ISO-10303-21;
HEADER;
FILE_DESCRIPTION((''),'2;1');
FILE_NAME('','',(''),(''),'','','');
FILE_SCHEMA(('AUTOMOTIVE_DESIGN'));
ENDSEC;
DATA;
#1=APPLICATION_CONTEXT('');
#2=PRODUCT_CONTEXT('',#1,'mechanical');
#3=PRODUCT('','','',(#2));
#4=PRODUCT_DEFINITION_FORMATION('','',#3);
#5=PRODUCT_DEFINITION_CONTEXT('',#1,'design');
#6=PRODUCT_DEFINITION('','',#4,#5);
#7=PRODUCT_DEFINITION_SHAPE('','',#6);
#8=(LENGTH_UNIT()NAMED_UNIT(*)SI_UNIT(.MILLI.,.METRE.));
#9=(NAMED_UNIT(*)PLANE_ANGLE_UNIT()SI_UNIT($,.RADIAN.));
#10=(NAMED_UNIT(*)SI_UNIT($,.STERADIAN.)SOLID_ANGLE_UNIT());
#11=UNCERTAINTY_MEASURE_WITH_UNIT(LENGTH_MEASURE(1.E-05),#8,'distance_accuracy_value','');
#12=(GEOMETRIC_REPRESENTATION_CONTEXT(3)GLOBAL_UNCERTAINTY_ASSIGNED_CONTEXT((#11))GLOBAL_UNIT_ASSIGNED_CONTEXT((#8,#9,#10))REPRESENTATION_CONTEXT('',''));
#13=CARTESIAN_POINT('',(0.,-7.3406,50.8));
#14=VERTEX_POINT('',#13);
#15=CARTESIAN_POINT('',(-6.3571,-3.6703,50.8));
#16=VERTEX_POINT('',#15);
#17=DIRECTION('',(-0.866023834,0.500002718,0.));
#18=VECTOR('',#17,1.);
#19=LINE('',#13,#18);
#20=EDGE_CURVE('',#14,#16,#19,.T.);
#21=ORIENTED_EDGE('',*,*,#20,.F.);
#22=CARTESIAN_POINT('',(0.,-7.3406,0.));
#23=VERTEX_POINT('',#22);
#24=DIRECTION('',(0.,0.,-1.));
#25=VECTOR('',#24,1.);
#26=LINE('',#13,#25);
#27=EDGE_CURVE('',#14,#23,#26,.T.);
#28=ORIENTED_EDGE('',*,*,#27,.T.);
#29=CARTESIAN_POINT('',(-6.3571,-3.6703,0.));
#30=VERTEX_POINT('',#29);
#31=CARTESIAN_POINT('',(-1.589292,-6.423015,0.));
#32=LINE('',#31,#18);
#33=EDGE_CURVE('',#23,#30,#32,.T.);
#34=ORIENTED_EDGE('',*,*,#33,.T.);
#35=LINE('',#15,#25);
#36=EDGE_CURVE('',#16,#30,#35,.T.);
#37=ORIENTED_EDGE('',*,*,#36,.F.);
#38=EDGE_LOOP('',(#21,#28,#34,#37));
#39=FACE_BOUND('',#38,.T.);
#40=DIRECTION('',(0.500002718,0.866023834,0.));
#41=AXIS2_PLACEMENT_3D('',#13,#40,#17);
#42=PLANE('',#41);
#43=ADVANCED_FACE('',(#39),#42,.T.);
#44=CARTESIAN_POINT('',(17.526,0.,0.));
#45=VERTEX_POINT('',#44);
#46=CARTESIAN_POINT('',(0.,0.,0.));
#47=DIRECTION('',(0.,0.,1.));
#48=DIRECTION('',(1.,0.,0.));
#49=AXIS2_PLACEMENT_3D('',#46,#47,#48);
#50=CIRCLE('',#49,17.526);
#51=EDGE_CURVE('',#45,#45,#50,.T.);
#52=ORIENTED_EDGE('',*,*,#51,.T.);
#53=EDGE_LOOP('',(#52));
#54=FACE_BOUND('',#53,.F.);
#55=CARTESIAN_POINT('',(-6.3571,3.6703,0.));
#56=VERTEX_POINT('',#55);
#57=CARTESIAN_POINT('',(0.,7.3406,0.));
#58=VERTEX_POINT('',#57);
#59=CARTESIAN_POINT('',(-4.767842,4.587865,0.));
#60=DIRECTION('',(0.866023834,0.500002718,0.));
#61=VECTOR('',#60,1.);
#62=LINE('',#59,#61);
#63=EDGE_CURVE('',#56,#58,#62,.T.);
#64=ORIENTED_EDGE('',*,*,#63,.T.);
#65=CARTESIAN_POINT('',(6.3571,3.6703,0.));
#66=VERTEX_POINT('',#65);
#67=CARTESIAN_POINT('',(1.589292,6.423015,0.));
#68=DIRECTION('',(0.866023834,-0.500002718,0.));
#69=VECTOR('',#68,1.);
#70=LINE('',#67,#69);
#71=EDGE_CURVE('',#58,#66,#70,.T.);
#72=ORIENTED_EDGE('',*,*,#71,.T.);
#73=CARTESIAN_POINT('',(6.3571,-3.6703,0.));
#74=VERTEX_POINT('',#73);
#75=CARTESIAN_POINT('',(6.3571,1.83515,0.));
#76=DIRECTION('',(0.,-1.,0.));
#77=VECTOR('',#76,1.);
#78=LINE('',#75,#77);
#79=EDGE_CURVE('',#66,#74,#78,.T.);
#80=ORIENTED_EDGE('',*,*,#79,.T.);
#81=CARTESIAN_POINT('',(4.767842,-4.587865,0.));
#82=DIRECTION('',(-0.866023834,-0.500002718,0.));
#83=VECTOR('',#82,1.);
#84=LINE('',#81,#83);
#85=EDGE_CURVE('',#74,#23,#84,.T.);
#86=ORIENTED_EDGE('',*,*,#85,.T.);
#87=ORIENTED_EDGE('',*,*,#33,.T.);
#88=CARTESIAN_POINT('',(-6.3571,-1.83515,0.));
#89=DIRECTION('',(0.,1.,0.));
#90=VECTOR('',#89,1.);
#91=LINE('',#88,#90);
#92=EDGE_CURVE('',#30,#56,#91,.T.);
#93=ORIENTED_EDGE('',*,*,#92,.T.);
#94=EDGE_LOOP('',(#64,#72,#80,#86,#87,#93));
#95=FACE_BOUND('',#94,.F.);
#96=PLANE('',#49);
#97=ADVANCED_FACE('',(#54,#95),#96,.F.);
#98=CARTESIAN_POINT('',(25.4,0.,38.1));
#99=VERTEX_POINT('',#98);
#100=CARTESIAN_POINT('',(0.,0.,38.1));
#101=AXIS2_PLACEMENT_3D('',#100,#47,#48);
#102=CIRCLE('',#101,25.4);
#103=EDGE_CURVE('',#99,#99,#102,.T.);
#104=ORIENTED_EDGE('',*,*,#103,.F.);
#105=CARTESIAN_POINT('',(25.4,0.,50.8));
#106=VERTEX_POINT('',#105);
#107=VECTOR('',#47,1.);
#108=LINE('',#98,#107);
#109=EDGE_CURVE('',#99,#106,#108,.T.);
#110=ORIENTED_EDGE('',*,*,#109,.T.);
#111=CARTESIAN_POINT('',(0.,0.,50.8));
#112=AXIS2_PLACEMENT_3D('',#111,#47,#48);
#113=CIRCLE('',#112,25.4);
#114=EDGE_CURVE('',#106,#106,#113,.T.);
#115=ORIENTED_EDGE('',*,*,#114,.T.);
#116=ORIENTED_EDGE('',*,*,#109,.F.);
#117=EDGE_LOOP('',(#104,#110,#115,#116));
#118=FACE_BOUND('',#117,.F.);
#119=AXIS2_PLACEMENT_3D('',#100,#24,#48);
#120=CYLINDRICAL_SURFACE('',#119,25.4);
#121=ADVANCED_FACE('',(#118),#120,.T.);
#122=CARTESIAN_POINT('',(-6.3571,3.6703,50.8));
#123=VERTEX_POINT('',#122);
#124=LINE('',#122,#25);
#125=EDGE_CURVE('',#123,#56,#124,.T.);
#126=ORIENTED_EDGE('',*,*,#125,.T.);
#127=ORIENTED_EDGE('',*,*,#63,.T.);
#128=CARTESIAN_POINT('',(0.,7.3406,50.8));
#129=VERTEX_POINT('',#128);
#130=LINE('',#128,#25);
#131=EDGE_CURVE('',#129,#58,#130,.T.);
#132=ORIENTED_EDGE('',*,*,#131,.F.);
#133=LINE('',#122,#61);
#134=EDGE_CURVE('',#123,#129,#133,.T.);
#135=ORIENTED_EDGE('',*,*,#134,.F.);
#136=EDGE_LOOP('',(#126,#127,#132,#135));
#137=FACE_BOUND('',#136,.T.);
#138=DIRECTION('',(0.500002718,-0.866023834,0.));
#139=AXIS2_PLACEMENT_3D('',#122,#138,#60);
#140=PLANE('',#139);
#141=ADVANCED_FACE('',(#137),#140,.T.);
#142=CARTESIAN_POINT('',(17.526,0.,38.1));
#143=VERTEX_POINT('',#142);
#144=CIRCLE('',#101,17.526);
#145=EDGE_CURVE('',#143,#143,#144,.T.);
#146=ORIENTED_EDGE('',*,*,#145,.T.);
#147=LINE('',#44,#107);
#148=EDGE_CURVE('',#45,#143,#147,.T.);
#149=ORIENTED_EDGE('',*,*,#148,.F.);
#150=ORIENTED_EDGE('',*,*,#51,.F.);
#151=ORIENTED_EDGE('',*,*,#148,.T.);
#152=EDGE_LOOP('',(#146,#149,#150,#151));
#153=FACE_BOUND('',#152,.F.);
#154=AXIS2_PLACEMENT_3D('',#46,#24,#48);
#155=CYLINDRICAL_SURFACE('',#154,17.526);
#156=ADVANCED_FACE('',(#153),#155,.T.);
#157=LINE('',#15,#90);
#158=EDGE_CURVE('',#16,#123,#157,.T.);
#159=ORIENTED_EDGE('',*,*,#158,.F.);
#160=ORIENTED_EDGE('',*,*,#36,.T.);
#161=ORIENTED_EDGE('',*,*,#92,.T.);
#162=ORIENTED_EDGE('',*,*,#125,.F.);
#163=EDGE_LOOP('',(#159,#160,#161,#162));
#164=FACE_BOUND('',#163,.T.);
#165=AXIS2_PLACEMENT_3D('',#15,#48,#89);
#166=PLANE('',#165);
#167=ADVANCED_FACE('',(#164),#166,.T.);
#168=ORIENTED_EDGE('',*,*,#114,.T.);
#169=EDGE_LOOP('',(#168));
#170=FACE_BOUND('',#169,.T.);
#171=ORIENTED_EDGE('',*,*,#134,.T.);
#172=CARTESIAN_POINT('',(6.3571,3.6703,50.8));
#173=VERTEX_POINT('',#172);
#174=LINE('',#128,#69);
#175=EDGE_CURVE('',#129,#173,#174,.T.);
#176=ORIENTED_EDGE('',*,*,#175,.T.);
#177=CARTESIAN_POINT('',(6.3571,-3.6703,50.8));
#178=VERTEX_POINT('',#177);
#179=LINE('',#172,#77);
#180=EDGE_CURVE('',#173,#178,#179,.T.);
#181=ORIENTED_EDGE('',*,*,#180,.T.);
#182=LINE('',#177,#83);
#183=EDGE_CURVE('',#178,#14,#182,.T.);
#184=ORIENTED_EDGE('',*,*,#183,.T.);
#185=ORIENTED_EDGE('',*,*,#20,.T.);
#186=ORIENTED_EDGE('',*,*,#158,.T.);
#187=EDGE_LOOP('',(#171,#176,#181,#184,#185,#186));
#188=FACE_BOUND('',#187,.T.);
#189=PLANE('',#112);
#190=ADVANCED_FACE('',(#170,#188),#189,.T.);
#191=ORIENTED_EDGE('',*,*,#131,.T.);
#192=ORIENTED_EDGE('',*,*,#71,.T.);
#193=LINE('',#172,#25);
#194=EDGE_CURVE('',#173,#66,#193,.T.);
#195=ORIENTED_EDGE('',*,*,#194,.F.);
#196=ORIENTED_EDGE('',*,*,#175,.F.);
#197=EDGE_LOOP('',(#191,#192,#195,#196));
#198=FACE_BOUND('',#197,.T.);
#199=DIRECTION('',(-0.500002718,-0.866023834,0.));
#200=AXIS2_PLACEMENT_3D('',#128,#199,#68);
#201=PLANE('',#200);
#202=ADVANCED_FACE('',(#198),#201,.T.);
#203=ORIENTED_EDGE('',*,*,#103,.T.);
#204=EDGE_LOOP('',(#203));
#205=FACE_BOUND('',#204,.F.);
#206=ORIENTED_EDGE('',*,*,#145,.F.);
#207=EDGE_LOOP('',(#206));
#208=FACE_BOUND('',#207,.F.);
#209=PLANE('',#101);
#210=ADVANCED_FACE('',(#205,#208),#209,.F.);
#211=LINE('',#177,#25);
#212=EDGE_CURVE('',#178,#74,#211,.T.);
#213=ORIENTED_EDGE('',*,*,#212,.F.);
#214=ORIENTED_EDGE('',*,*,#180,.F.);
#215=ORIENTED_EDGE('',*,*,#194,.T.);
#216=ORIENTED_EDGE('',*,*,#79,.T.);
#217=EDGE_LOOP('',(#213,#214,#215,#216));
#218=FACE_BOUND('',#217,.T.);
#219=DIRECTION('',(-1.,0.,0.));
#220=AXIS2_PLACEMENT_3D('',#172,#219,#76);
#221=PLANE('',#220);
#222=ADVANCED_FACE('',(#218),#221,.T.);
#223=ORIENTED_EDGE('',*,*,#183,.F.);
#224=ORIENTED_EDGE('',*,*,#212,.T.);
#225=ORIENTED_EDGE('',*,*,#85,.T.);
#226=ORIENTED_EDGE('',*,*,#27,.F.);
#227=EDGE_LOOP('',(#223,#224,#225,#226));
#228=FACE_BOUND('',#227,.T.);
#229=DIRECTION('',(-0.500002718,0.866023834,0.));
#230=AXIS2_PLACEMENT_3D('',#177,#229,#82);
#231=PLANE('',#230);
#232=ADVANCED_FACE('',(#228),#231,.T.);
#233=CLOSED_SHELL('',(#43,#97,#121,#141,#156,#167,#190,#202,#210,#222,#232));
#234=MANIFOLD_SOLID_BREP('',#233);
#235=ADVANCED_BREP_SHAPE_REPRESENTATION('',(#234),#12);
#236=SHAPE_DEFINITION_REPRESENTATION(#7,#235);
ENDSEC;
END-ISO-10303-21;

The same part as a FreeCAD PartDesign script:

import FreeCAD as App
import Part
import Sketcher
Q = App.Units.Quantity


def add_polygon(sketch, points):
    """Adds a closed chain of lines whose ends are joined by coincident constraints."""
    first, n = sketch.GeometryCount, len(points)
    for a, b in zip(points, points[1:] + points[:1]):
        sketch.addGeometry(Part.LineSegment(App.Vector(*a, 0), App.Vector(*b, 0)), False)
    for i in range(n):
        sketch.addConstraint(Sketcher.Constraint("Coincident", first + i, 2, first + (i + 1) % n, 1))

doc = App.newDocument("Part")
body = doc.addObject("PartDesign::Body", "Body")

# Sketch on XY plane
sketch1 = doc.addObject("Sketcher::SketchObject", "Sketch")
body.addObject(sketch1)
sketch1.AttachmentSupport = (doc.XY_Plane, [""])
sketch1.MapMode = "FlatFace"
sketch1.addGeometry(Part.Circle(App.Vector(0, 0, 0), App.Vector(0, 0, 1), 18), False)
sketch1.addConstraint([
    Sketcher.Constraint("Coincident", 0, 3, -1, 1),
    Sketcher.Constraint("Diameter", 0, Q("1.38 in")),
])
pad1 = doc.addObject("PartDesign::Pad", "Pad")
body.addObject(pad1)
pad1.Profile = sketch1
pad1.Length = Q("1.5 in")

# Sketch on XY plane
sketch2 = doc.addObject("Sketcher::SketchObject", "Sketch001")
body.addObject(sketch2)
sketch2.AttachmentSupport = (doc.XY_Plane, [""])
sketch2.MapMode = "FlatFace"
sketch2.AttachmentOffset = App.Placement(App.Vector(0, 0, 1.5 * 25.4), App.Rotation())
sketch2.addGeometry(Part.Circle(App.Vector(0, 0, 0), App.Vector(0, 0, 1), 25), False)
sketch2.addConstraint([
    Sketcher.Constraint("Coincident", 0, 3, -1, 1),
    Sketcher.Constraint("Diameter", 0, Q("2 in")),
])
pad2 = doc.addObject("PartDesign::Pad", "Pad001")
body.addObject(pad2)
pad2.Profile = sketch2
pad2.Length = Q("0.5 in")

# Sketch on XY plane
sketch3 = doc.addObject("Sketcher::SketchObject", "Sketch002")
body.addObject(sketch3)
sketch3.AttachmentSupport = (doc.XY_Plane, [""])
sketch3.MapMode = "FlatFace"
sketch3.AttachmentOffset = App.Placement(App.Vector(0, 0, 2 * 25.4), App.Rotation())
add_polygon(sketch3, [(-6, -4), (0, -7), (6, -4), (6, 4), (0, 7), (-6, 4)])  # lines 0-5
sketch3.addConstraint([
    Sketcher.Constraint("Vertical", 2),
    Sketcher.Constraint("Vertical", 5),
    Sketcher.Constraint("Symmetric", 0, 2, 3, 2, -1, 1),
    Sketcher.Constraint("Symmetric", 1, 2, 4, 2, -1, 1),
    Sketcher.Constraint("PointOnObject", 0, 2, -2),
    Sketcher.Constraint("Parallel", 0, 3),
    Sketcher.Constraint("Horizontal", 2, 2, 4, 2),
    Sketcher.Constraint("Angle", 0, Q("-30.0002 deg")),
    Sketcher.Constraint("DistanceY", 0, 2, 3, 2, Q("0.578 in")),
    Sketcher.Constraint("DistanceY", 2, 1, 2, 2, Q("0.289 in")),
])
pocket1 = doc.addObject("PartDesign::Pocket", "Pocket")
body.addObject(pocket1)
pocket1.Profile = sketch3
pocket1.Type = "ThroughAll"

doc.recompute()
